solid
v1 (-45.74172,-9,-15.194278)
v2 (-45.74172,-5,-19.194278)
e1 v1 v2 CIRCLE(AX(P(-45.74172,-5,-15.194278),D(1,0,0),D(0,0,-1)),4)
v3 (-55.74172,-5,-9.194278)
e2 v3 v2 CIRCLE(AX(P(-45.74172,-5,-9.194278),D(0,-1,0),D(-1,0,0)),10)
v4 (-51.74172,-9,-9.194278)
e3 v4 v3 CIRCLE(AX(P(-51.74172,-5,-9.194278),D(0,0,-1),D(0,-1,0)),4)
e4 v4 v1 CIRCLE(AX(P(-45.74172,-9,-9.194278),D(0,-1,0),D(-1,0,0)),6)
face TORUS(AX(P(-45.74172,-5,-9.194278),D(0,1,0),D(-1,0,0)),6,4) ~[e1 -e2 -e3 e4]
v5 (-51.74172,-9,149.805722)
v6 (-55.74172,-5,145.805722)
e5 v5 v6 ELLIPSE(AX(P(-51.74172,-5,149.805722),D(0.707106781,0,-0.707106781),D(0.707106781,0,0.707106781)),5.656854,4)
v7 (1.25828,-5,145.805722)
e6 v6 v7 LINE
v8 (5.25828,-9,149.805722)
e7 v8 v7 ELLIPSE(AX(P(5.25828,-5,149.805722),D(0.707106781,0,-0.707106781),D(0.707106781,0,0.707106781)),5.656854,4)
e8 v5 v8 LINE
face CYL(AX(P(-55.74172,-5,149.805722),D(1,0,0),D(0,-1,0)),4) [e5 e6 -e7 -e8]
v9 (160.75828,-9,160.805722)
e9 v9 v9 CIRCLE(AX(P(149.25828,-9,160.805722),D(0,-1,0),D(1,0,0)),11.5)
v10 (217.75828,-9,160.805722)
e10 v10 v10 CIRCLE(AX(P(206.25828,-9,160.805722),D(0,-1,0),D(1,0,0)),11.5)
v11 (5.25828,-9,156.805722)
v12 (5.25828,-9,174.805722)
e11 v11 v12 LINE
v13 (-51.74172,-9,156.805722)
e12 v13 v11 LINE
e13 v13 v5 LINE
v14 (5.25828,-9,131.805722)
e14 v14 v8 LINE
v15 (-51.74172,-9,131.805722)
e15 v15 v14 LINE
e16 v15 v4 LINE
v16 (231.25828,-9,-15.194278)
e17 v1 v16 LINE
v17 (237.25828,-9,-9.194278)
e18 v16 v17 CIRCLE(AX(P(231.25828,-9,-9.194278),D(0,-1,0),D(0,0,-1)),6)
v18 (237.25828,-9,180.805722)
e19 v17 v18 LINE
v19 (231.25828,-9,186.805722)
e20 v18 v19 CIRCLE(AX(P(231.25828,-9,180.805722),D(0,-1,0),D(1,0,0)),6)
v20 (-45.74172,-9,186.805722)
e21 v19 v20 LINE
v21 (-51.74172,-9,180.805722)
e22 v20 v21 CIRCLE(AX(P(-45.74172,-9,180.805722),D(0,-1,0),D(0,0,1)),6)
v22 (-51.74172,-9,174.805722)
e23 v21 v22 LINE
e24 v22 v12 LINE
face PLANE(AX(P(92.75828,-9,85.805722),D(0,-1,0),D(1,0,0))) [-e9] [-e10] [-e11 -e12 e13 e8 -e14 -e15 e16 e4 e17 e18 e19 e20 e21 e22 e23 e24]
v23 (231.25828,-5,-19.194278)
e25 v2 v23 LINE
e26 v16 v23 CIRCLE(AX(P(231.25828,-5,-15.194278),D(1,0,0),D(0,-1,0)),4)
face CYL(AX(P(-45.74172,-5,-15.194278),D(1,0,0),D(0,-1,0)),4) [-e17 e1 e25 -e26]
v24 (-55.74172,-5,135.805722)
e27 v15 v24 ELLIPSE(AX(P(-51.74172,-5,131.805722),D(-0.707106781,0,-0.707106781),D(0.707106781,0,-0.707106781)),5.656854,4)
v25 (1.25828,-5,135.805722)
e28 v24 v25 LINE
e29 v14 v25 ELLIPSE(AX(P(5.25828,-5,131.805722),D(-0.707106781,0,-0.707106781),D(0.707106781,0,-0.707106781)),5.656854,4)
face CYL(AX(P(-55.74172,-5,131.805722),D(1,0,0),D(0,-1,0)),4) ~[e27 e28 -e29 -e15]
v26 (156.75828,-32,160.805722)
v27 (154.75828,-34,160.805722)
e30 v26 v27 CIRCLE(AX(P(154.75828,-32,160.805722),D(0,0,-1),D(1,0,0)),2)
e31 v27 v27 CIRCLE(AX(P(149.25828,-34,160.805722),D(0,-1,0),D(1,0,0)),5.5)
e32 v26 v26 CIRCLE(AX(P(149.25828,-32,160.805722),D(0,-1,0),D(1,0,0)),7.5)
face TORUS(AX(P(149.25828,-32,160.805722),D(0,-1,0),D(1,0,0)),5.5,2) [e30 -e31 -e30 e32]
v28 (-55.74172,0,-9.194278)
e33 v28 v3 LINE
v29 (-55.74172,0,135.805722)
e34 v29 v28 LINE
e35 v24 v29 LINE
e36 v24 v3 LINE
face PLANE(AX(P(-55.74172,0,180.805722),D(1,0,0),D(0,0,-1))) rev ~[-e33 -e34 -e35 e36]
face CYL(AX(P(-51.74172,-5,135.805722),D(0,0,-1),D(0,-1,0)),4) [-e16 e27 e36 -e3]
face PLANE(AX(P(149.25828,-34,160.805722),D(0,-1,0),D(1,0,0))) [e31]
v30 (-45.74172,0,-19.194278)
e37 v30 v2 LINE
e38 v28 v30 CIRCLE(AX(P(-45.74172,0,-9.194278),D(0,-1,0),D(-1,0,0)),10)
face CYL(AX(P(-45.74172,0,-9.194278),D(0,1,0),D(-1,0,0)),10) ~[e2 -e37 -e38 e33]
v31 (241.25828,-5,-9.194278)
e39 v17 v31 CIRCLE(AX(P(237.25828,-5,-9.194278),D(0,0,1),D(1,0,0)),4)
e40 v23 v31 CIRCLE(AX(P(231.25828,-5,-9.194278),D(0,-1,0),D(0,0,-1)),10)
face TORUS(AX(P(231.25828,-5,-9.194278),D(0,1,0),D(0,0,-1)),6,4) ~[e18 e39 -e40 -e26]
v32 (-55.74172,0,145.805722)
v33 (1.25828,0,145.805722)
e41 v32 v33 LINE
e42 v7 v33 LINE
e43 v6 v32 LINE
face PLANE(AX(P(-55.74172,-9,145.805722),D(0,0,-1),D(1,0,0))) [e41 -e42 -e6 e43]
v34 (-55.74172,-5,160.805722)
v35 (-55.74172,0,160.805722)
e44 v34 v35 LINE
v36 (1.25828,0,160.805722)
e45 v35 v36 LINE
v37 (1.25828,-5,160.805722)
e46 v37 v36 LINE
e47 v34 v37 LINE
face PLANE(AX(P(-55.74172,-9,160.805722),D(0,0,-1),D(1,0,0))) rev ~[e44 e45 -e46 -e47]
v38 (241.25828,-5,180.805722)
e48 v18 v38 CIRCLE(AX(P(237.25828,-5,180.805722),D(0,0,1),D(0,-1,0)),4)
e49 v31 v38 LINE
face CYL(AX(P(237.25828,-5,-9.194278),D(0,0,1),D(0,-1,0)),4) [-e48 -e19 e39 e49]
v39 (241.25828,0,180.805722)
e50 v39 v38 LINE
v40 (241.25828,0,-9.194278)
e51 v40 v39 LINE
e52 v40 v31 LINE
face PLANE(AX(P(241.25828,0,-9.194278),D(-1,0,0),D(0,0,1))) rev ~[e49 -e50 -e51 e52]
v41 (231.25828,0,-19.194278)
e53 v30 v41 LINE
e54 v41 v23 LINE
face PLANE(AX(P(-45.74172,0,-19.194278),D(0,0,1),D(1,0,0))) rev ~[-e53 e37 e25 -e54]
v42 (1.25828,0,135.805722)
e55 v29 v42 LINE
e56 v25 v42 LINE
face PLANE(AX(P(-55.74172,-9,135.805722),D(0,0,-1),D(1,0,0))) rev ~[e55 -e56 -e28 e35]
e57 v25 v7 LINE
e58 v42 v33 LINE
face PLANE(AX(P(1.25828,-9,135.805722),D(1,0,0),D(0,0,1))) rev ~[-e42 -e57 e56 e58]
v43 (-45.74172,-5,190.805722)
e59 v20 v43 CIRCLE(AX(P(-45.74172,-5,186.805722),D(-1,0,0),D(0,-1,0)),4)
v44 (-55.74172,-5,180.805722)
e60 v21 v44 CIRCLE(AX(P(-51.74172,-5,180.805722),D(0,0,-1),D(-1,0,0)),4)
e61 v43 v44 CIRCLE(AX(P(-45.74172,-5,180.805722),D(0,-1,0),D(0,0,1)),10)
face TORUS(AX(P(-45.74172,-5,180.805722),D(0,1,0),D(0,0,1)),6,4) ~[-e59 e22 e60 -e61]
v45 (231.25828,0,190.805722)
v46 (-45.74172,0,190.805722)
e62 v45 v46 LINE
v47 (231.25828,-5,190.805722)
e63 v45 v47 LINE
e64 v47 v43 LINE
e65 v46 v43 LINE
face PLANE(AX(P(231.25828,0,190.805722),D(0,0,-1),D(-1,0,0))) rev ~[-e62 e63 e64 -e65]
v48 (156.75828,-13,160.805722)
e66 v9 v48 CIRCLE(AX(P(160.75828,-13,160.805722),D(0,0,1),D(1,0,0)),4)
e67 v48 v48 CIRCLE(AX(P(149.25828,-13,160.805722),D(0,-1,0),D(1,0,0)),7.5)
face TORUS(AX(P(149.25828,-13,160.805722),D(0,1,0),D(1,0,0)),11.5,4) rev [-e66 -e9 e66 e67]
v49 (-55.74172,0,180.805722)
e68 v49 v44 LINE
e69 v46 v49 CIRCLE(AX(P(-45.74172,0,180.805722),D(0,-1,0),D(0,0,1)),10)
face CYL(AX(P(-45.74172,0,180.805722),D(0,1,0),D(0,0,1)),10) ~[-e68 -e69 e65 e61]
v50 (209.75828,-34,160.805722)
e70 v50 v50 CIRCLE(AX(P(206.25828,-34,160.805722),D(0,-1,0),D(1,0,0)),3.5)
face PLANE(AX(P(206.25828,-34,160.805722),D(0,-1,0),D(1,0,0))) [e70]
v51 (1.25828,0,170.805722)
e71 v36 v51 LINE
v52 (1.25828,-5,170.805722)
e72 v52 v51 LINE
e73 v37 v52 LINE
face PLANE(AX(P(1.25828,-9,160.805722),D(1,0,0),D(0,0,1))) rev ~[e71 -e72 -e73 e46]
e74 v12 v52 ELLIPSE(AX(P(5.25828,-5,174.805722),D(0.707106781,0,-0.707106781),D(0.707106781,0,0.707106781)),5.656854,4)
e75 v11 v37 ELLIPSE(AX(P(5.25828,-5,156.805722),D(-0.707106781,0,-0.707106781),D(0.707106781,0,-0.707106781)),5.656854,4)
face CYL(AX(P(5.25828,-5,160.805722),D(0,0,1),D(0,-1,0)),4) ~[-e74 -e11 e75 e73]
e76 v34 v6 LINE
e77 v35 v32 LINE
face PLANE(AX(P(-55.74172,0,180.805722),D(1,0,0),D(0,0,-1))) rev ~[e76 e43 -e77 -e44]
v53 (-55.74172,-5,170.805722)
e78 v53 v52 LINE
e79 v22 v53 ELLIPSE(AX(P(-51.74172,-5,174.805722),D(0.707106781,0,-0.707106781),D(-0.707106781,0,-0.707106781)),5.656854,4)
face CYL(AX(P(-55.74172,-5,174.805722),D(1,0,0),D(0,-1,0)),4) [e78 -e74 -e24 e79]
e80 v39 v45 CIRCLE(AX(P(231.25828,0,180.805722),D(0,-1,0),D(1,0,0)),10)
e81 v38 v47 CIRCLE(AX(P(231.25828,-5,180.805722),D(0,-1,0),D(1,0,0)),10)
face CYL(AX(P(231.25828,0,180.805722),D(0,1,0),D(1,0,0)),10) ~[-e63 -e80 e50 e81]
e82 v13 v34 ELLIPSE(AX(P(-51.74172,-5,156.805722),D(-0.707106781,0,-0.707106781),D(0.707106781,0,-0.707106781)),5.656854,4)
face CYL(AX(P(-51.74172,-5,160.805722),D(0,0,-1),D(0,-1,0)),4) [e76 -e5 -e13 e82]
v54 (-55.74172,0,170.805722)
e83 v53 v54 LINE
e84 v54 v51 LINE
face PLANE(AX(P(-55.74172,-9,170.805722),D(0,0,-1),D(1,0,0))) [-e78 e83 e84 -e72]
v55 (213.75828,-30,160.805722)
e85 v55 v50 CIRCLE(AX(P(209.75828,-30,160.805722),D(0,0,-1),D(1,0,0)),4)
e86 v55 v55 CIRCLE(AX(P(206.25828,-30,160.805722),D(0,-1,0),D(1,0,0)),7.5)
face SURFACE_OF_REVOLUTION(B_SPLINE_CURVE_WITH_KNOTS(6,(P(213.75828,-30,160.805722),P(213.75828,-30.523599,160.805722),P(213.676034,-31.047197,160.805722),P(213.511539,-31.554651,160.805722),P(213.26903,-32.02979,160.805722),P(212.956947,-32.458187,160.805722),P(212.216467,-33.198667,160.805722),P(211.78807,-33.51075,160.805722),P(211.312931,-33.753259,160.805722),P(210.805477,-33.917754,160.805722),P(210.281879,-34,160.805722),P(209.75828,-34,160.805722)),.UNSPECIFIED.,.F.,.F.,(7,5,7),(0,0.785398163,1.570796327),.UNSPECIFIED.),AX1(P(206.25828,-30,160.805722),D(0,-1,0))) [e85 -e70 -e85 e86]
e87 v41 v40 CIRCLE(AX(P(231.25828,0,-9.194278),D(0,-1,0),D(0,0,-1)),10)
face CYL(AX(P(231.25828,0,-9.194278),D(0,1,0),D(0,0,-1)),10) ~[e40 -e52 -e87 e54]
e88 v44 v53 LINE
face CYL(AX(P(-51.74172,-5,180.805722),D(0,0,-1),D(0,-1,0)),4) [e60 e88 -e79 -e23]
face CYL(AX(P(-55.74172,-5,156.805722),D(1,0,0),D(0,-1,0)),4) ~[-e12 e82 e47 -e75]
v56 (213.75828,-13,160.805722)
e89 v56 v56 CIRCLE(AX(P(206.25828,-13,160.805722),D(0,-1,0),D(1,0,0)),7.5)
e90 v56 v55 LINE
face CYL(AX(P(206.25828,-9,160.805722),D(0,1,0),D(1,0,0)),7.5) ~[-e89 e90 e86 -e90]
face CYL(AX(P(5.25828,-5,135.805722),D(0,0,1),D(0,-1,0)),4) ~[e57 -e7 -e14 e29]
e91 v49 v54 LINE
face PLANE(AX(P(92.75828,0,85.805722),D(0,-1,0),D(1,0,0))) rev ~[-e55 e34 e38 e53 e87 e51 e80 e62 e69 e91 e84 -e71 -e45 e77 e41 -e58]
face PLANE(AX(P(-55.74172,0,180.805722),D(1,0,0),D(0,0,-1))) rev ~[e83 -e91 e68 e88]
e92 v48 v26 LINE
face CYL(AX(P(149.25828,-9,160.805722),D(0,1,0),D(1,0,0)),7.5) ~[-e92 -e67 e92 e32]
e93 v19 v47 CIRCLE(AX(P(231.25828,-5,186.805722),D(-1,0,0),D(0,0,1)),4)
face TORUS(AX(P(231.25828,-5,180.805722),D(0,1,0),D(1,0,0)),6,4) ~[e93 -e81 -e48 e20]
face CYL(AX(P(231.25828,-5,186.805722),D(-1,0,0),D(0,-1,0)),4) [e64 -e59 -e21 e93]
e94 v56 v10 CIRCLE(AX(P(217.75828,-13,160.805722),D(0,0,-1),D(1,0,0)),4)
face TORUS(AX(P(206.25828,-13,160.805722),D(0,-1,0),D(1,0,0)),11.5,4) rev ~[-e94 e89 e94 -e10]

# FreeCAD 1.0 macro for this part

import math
import FreeCAD as App
import Part
import Sketcher

V = App.Vector
Q = App.Units.Quantity


def edges_at(feature, points):
    """Names of the edges that pass closest to the given points."""
    edges = feature.Shape.Edges
    near = lambda p: min(range(len(edges)), key=lambda i: edges[i].distToShape(Part.Vertex(*p))[0])
    return sorted({f"Edge{near(p) + 1}" for p in points})


def add_polygon(sketch, points):
    """Adds a closed chain of lines whose ends are joined by coincident constraints."""
    first, n = sketch.GeometryCount, len(points)
    for a, b in zip(points, points[1:] + points[:1]):
        sketch.addGeometry(Part.LineSegment(App.Vector(*a, 0), App.Vector(*b, 0)), False)
    for i in range(n):
        sketch.addConstraint(Sketcher.Constraint("Coincident", first + i, 2, first + (i + 1) % n, 1))

doc = App.newDocument("Part")
body = doc.addObject("PartDesign::Body", "Body")

# Sketch on XZ plane
sketch1 = doc.addObject("Sketcher::SketchObject", "Sketch")
body.addObject(sketch1)
sketch1.AttachmentSupport = (doc.XZ_Plane, [""])
sketch1.MapMode = "FlatFace"
sketch1.addGeometry(Part.LineSegment(V(231.25828, 190.805722, 0), V(-45.74172, 190.805722, 0)), False)
sketch1.addGeometry(Part.ArcOfCircle(Part.Circle(V(-45.74172, 180.805722, 0), V(0, 0, 1), 10), math.radians(90), math.radians(180)), False)
sketch1.addGeometry(Part.LineSegment(V(-55.74172, 180.805722, 0), V(-55.74172, -9.194278, 0)), False)
sketch1.addGeometry(Part.ArcOfCircle(Part.Circle(V(-45.74172, -9.194278, 0), V(0, 0, 1), 10), math.radians(180), math.radians(270)), False)
sketch1.addGeometry(Part.LineSegment(V(-45.74172, -19.194278, 0), V(231.25828, -19.194278, 0)), False)
sketch1.addGeometry(Part.ArcOfCircle(Part.Circle(V(231.25828, -9.194278, 0), V(0, 0, 1), 10), math.radians(-90), math.radians(0)), False)
sketch1.addGeometry(Part.LineSegment(V(241.25828, -9.194278, 0), V(241.25828, 180.805722, 0)), False)
sketch1.addGeometry(Part.ArcOfCircle(Part.Circle(V(231.25828, 180.805722, 0), V(0, 0, 1), 10), math.radians(0), math.radians(90)), False)
sketch1.addConstraint(Sketcher.Constraint("Tangent", 0, 2, 1, 1))
sketch1.addConstraint(Sketcher.Constraint("Tangent", 1, 2, 2, 1))
sketch1.addConstraint(Sketcher.Constraint("Tangent", 2, 2, 3, 1))
sketch1.addConstraint(Sketcher.Constraint("Tangent", 3, 2, 4, 1))
sketch1.addConstraint(Sketcher.Constraint("Tangent", 4, 2, 5, 1))
sketch1.addConstraint(Sketcher.Constraint("Tangent", 5, 2, 6, 1))
sketch1.addConstraint(Sketcher.Constraint("Tangent", 6, 2, 7, 1))
sketch1.addConstraint(Sketcher.Constraint("Tangent", 7, 2, 0, 1))
sketch1.addConstraint(Sketcher.Constraint("Horizontal", 0))
sketch1.addConstraint(Sketcher.Constraint("Vertical", 2))
sketch1.addConstraint(Sketcher.Constraint("Horizontal", 4))
sketch1.addConstraint(Sketcher.Constraint("Vertical", 6))
sketch1.addConstraint(Sketcher.Constraint("Equal", 1, 3))
sketch1.addConstraint(Sketcher.Constraint("Equal", 3, 5))
sketch1.addConstraint(Sketcher.Constraint("Equal", 5, 7))
sketch1.addConstraint(Sketcher.Constraint("Radius", 1, Q("10 mm")))
sketch1.addConstraint(Sketcher.Constraint("DistanceX", 0, 2, 0, 1, Q("277 mm")))
sketch1.addConstraint(Sketcher.Constraint("DistanceY", 2, 2, 2, 1, Q("190 mm")))
sketch1.addConstraint(Sketcher.Constraint("DistanceX", 1, 3, -1, 1, Q("45.74172 mm")))
sketch1.addConstraint(Sketcher.Constraint("DistanceY", -1, 1, 1, 3, Q("180.805722 mm")))
pad1 = doc.addObject("PartDesign::Pad", "Pad")
body.addObject(pad1)
pad1.Profile = sketch1
pad1.Length = 9

# Sketch on XZ plane
sketch2 = doc.addObject("Sketcher::SketchObject", "Sketch001")
body.addObject(sketch2)
sketch2.AttachmentSupport = (doc.XZ_Plane, [""])
sketch2.MapMode = "FlatFace"
sketch2.AttachmentOffset = App.Placement(V(0, 0, 9), App.Rotation())
sketch2.addGeometry(Part.Circle(V(149.25828, 160.805722, 0), V(0, 0, 1), 7.5), False)
sketch2.addGeometry(Part.Circle(V(206.25828, 160.805722, 0), V(0, 0, 1), 7.5), False)
sketch2.addConstraint(Sketcher.Constraint("Equal", 0, 1))
sketch2.addConstraint(Sketcher.Constraint("Horizontal", 0, 3, 1, 3))
sketch2.addConstraint(Sketcher.Constraint("Diameter", 0, Q("15 mm")))
sketch2.addConstraint(Sketcher.Constraint("DistanceX", 0, 3, 1, 3, Q("57 mm")))
sketch2.addConstraint(Sketcher.Constraint("DistanceX", -1, 1, 0, 3, Q("149.25828 mm")))
sketch2.addConstraint(Sketcher.Constraint("DistanceY", -1, 1, 0, 3, Q("160.805722 mm")))
pad2 = doc.addObject("PartDesign::Pad", "Pad001")
body.addObject(pad2)
pad2.Profile = sketch2
pad2.Length = 25

# Sketch on XZ plane
sketch3 = doc.addObject("Sketcher::SketchObject", "Sketch002")
body.addObject(sketch3)
sketch3.AttachmentSupport = (doc.XZ_Plane, [""])
sketch3.MapMode = "FlatFace"
sketch3.AttachmentOffset = App.Placement(V(0, 0, 9), App.Rotation())
add_polygon(sketch3, [(-55.74172, 170.805722), (-55.74172, 160.805722), (1.25828, 160.805722), (1.25828, 170.805722)])  # lines 0-3
add_polygon(sketch3, [(-55.74172, 145.805722), (-55.74172, 135.805722), (1.25828, 135.805722), (1.25828, 145.805722)])  # lines 4-7
sketch3.addConstraint(Sketcher.Constraint("Vertical", 0))
sketch3.addConstraint(Sketcher.Constraint("Horizontal", 1))
sketch3.addConstraint(Sketcher.Constraint("Vertical", 2))
sketch3.addConstraint(Sketcher.Constraint("Horizontal", 3))
sketch3.addConstraint(Sketcher.Constraint("Vertical", 4))
sketch3.addConstraint(Sketcher.Constraint("Horizontal", 5))
sketch3.addConstraint(Sketcher.Constraint("Vertical", 6))
sketch3.addConstraint(Sketcher.Constraint("Horizontal", 7))
sketch3.addConstraint(Sketcher.Constraint("Vertical", 3, 2, 4, 2))
sketch3.addConstraint(Sketcher.Constraint("Vertical", 2, 2, 5, 2))
sketch3.addConstraint(Sketcher.Constraint("Equal", 2, 4))
sketch3.addConstraint(Sketcher.Constraint("DistanceX", 1, 1, 1, 2, Q("57 mm")))
sketch3.addConstraint(Sketcher.Constraint("DistanceY", 0, 2, 0, 1, Q("10 mm")))
sketch3.addConstraint(Sketcher.Constraint("DistanceY", 4, 2, 0, 2, Q("25 mm")))
sketch3.addConstraint(Sketcher.Constraint("DistanceX", 0, 2, -1, 1, Q("55.74172 mm")))
sketch3.addConstraint(Sketcher.Constraint("DistanceY", -1, 1, 0, 2, Q("160.805722 mm")))
pocket1 = doc.addObject("PartDesign::Pocket", "Pocket")
body.addObject(pocket1)
pocket1.Profile = sketch3
pocket1.Length = 25
doc.recompute()

fillet = doc.addObject("PartDesign::Fillet", "Fillet")
body.addObject(fillet)
fillet.Base = (pocket1, edges_at(pocket1, [(141.758, -34, 160.806)]))
fillet.Radius = 2
doc.recompute()

fillet2 = doc.addObject("PartDesign::Fillet", "Fillet001")
body.addObject(fillet2)
fillet2.Base = (fillet, edges_at(fillet, [(198.758, -34, 160.806)]))
fillet2.Radius = 4
doc.recompute()

fillet3 = doc.addObject("PartDesign::Fillet", "Fillet002")
body.addObject(fillet3)
fillet3.Base = (fillet2, edges_at(fillet2, [
    (143.758, -34, 160.806),
    (141.758, -32, 160.806),
    (238.329, -9, 187.877),
    (241.258, -9, 85.806),
    (238.329, -9, -16.265),
    (92.758, -9, -19.194),
    (-52.813, -9, -16.265),
    (-55.742, -9, 63.306),
    (-27.242, -9, 135.806),
    (1.258, -9, 140.806),
    (-27.242, -9, 145.806),
    (-55.742, -9, 153.306),
    (-27.242, -9, 160.806),
    (1.258, -9, 165.806),
    (-27.242, -9, 170.806),
    (-55.742, -9, 175.806),
    (-52.813, -9, 187.877),
    (92.758, -9, 190.806),
    (141.758, -9, 160.806),
    (198.758, -9, 160.806),
]))
fillet3.Radius = 4

doc.recompute()
